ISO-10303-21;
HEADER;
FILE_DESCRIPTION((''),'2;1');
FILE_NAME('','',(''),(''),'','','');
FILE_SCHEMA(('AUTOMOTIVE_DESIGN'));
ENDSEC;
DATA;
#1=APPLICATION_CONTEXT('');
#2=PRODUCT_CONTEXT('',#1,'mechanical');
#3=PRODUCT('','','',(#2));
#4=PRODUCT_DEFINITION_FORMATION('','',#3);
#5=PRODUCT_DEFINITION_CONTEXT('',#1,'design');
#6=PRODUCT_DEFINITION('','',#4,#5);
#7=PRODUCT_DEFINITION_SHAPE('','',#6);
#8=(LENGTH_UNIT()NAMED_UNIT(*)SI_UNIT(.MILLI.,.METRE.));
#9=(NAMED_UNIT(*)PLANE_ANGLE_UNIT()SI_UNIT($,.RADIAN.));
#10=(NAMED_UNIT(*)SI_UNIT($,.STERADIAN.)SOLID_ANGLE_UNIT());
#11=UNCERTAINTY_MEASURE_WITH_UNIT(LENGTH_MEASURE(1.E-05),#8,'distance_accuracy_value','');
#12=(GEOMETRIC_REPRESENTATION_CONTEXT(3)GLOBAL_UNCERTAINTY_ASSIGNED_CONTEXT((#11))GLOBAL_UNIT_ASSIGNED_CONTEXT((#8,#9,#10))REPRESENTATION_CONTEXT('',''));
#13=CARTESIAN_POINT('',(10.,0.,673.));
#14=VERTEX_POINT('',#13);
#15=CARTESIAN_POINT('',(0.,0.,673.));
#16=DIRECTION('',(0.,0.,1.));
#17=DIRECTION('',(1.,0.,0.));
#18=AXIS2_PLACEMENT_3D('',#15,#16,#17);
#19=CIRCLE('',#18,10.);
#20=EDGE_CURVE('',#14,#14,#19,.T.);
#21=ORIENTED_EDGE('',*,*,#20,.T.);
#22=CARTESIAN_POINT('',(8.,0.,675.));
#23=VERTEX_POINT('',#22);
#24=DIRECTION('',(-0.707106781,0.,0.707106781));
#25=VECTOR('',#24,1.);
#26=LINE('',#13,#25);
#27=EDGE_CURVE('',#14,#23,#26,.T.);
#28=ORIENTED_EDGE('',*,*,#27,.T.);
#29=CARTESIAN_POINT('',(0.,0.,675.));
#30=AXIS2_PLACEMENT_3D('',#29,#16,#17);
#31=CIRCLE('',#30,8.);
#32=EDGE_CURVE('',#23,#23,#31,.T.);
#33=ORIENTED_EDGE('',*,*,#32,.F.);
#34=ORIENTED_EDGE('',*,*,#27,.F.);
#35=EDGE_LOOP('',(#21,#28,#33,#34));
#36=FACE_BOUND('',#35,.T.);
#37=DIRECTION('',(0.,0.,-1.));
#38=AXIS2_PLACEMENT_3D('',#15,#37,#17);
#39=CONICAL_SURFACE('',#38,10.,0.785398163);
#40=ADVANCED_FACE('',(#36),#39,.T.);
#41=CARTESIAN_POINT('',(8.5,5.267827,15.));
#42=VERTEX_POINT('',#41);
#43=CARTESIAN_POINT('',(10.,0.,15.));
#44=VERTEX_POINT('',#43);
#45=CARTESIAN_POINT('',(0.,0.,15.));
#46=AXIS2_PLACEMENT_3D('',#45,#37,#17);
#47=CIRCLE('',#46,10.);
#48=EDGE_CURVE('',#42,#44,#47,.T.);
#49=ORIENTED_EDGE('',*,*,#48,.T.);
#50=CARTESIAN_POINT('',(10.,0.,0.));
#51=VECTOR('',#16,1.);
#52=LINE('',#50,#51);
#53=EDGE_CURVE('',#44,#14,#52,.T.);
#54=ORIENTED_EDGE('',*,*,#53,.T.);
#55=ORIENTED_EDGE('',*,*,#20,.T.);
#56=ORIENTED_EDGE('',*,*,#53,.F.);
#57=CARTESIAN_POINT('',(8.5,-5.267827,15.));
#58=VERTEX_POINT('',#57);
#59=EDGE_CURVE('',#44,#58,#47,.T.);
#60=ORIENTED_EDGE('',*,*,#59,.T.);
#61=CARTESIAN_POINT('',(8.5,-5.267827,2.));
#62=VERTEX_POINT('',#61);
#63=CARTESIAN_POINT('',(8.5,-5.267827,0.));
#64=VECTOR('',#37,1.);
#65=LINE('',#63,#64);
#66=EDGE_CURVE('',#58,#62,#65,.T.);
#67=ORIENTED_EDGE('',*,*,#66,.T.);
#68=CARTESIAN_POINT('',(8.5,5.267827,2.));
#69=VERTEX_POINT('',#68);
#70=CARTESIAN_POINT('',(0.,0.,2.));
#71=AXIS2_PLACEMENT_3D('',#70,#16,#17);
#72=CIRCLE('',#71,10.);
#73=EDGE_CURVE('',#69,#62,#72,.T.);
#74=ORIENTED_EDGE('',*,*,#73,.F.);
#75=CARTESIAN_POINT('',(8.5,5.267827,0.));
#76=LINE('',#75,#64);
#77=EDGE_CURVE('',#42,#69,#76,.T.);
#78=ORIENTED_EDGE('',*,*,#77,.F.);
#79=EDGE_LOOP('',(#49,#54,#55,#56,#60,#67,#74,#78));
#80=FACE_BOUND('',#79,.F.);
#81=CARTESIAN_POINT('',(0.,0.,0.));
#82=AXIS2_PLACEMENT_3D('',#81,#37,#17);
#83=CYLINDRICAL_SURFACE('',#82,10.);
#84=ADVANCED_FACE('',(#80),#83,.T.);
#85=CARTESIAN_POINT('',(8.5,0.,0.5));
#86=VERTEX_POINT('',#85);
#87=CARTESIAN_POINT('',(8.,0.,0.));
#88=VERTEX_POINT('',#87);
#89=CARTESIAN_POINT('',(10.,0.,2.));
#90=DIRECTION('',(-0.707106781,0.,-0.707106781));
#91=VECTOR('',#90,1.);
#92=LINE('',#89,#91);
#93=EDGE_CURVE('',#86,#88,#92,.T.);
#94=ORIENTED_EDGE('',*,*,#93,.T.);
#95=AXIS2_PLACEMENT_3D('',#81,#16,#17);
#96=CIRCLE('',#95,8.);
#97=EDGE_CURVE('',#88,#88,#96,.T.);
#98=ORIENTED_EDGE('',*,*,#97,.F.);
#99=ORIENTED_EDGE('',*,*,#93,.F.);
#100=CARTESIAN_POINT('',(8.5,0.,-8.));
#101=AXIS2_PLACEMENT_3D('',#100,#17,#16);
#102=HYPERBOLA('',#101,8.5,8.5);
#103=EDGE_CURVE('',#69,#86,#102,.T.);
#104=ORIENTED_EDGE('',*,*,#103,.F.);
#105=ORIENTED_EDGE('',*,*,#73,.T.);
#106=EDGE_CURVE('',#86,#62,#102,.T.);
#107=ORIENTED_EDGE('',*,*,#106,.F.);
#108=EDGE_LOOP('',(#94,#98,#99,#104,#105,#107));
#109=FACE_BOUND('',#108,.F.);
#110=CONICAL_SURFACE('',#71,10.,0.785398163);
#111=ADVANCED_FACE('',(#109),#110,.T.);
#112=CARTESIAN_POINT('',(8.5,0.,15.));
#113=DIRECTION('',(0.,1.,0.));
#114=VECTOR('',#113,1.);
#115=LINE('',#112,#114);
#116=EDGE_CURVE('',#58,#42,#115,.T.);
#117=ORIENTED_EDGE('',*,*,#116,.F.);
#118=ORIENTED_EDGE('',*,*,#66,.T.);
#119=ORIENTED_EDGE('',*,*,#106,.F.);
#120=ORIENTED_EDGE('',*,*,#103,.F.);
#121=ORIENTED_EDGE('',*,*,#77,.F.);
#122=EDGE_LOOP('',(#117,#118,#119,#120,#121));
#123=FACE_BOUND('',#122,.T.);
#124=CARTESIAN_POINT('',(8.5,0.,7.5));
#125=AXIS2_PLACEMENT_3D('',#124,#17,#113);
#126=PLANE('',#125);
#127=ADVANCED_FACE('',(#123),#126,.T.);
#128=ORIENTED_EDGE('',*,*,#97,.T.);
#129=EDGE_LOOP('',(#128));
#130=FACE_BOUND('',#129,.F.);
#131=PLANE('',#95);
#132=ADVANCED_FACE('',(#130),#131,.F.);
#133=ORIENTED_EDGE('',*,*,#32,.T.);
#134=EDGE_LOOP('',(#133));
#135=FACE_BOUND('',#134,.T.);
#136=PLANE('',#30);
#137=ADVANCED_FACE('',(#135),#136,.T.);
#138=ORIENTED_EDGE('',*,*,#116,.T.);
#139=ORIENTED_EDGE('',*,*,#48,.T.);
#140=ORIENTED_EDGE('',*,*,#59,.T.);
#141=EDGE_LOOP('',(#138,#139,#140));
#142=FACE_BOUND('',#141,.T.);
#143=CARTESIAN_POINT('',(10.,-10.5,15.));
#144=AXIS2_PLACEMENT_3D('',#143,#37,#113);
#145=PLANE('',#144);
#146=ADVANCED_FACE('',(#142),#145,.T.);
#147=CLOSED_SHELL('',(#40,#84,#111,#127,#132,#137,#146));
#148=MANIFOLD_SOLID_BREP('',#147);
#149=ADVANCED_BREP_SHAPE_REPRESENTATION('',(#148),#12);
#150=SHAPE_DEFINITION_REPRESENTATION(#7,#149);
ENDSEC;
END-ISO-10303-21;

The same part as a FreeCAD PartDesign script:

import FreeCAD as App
import Part
import Sketcher
from FreeCAD import Vector
Q = App.Units.Quantity


def edges_at(feature, points):
    """Names of the edges that pass closest to the given points."""
    edges = feature.Shape.Edges
    near = lambda p: min(range(len(edges)), key=lambda i: edges[i].distToShape(Part.Vertex(*p))[0])
    return sorted({f"Edge{near(p) + 1}" for p in points})


def add_polygon(sketch, points):
    """Adds a closed chain of lines whose ends are joined by coincident constraints."""
    first, n = sketch.GeometryCount, len(points)
    for a, b in zip(points, points[1:] + points[:1]):
        sketch.addGeometry(Part.LineSegment(App.Vector(*a, 0), App.Vector(*b, 0)), False)
    for i in range(n):
        sketch.addConstraint(Sketcher.Constraint("Coincident", first + i, 2, first + (i + 1) % n, 1))

doc = App.newDocument("Part")
body = doc.addObject("PartDesign::Body", "Body")

# Sketch on XY plane
sketch1 = body.newObject("Sketcher::SketchObject", "Sketch")
sketch1.AttachmentSupport = (doc.getObject("XY_Plane"), [""])
sketch1.MapMode = "FlatFace"
sketch1.addGeometry(Part.Circle(Vector(0, 0, 0), Vector(0, 0, 1), 10), False)
sketch1.addConstraint([
    Sketcher.Constraint("Coincident", 0, 3, -1, 1),
    Sketcher.Constraint("Diameter", 0, Q("20 mm")),
])
pad1 = body.newObject("PartDesign::Pad", "Pad")
pad1.Profile = sketch1
pad1.Length = 675
doc.recompute()

chamfer = body.newObject("PartDesign::Chamfer", "Chamfer")
chamfer.Base = (pad1, edges_at(pad1, [(-10, 0, 0), (-10, 0, 675)]))
chamfer.Size = 2

# Sketch on YZ plane
sketch2 = body.newObject("Sketcher::SketchObject", "Sketch001")
sketch2.AttachmentSupport = (doc.getObject("YZ_Plane"), [""])
sketch2.MapMode = "FlatFace"
sketch2.AttachmentOffset = App.Placement(Vector(0, 0, 10), App.Rotation())
add_polygon(sketch2, [(-10, 15), (-10, 0), (10, 0), (10, 15)])  # lines 0-3
sketch2.addConstraint([
    Sketcher.Constraint("Vertical", 0),
    Sketcher.Constraint("Horizontal", 1),
    Sketcher.Constraint("Vertical", 2),
    Sketcher.Constraint("Horizontal", 3),
    Sketcher.Constraint("Symmetric", 0, 2, 1, 2, -1, 1),
    Sketcher.Constraint("DistanceX", 1, 1, 1, 2, Q("21 mm")),
    Sketcher.Constraint("DistanceY", 0, 2, 0, 1, Q("15 mm")),
])
pocket1 = body.newObject("PartDesign::Pocket", "Pocket")
pocket1.Profile = sketch2
pocket1.Length = 1.5

doc.recompute()
